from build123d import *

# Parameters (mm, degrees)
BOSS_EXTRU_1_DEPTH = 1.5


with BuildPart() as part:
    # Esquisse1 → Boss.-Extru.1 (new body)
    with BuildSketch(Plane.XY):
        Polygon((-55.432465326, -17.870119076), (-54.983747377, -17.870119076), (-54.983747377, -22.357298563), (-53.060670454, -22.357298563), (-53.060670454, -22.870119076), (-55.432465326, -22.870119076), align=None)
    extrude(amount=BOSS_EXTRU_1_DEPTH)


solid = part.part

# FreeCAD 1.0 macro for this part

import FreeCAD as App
import Part
import Sketcher

V = App.Vector
Q = App.Units.Quantity

doc = App.newDocument("Part")
body = doc.addObject("PartDesign::Body", "Body")

# Sketch on XY plane
sketch1 = body.newObject("Sketcher::SketchObject", "Sketch")
sketch1.AttachmentSupport = (doc.getObject("XY_Plane"), [""])
sketch1.MapMode = "FlatFace"
sketch1.addGeometry(Part.LineSegment(V(-54.98, -17.87, 0), V(-55.43, -17.87, 0)), False)
sketch1.addGeometry(Part.LineSegment(V(-55.43, -17.87, 0), V(-55.43, -22.87, 0)), False)
sketch1.addGeometry(Part.LineSegment(V(-55.43, -22.87, 0), V(-53.06, -22.87, 0)), False)
sketch1.addGeometry(Part.LineSegment(V(-53.06, -22.87, 0), V(-53.06, -22.36, 0)), False)
sketch1.addGeometry(Part.LineSegment(V(-53.06, -22.36, 0), V(-54.98, -22.36, 0)), False)
sketch1.addGeometry(Part.LineSegment(V(-54.98, -22.36, 0), V(-54.98, -17.87, 0)), False)
sketch1.addConstraint(Sketcher.Constraint("Coincident", 0, 2, 1, 1))
sketch1.addConstraint(Sketcher.Constraint("Coincident", 1, 2, 2, 1))
sketch1.addConstraint(Sketcher.Constraint("Coincident", 2, 2, 3, 1))
sketch1.addConstraint(Sketcher.Constraint("Coincident", 3, 2, 4, 1))
sketch1.addConstraint(Sketcher.Constraint("Coincident", 4, 2, 5, 1))
sketch1.addConstraint(Sketcher.Constraint("Coincident", 5, 2, 0, 1))
sketch1.addConstraint(Sketcher.Constraint("Horizontal", 0))
sketch1.addConstraint(Sketcher.Constraint("Vertical", 1))
sketch1.addConstraint(Sketcher.Constraint("Horizontal", 2))
sketch1.addConstraint(Sketcher.Constraint("Vertical", 3))
sketch1.addConstraint(Sketcher.Constraint("Horizontal", 4))
sketch1.addConstraint(Sketcher.Constraint("Vertical", 5))
sketch1.addConstraint(Sketcher.Constraint("DistanceY", 1, 2, 1, 1, Q("5 mm")))
sketch1.addConstraint(Sketcher.Constraint("DistanceY", 3, 1, 3, 2, Q("0.512821 mm")))
sketch1.addConstraint(Sketcher.Constraint("DistanceY", 3, 2, -1, 1, Q("22.357299 mm")))
sketch1.addConstraint(Sketcher.Constraint("DistanceX", 0, 2, 0, 1, Q("0.448718 mm")))
sketch1.addConstraint(Sketcher.Constraint("DistanceX", 2, 1, 2, 2, Q("2.371795 mm")))
sketch1.addConstraint(Sketcher.Constraint("DistanceX", 2, 2, -1, 1, Q("53.06067 mm")))
pad1 = body.newObject("PartDesign::Pad", "Pad")
pad1.Profile = sketch1
pad1.Length = 1.5

doc.recompute()
